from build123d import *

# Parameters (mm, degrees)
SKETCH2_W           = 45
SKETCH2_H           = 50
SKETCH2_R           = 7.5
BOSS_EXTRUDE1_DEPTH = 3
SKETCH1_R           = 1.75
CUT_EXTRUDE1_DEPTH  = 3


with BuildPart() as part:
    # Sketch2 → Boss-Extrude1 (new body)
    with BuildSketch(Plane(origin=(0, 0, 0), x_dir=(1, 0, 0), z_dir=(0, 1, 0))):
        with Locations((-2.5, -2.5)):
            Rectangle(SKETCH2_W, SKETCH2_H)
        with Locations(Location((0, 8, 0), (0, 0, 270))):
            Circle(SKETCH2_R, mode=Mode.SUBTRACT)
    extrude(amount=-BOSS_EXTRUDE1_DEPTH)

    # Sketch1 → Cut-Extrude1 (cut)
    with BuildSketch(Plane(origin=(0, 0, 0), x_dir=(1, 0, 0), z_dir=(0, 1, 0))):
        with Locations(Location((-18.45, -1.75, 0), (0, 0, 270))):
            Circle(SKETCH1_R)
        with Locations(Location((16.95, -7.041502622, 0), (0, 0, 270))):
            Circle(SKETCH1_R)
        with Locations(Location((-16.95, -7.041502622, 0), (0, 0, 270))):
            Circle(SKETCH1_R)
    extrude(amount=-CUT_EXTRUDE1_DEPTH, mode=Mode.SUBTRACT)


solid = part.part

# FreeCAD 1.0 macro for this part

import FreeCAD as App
import Part
import Sketcher
from FreeCAD import Vector
Q = App.Units.Quantity


def add_polygon(sketch, points):
    """Adds a closed chain of lines whose ends are joined by coincident constraints."""
    first, n = sketch.GeometryCount, len(points)
    for a, b in zip(points, points[1:] + points[:1]):
        sketch.addGeometry(Part.LineSegment(App.Vector(*a, 0), App.Vector(*b, 0)), False)
    for i in range(n):
        sketch.addConstraint(Sketcher.Constraint("Coincident", first + i, 2, first + (i + 1) % n, 1))

doc = App.newDocument("Part")
params = doc.addObject("Spreadsheet::Sheet", "Params")
for row, (alias, value) in enumerate([
    ("sketch1_diameter", "15 mm"),
    ("sketch1_width", "45 mm"),
    ("sketch1_height", "50 mm"),
    ("pad1_length", "3 mm"),
    ("sketch2_diameter", "3.5 mm"),
    ("pocket1_length", "3 mm"),
], start=1):
    params.set(f"A{row}", alias)
    params.set(f"B{row}", "=" + value)
    params.setAlias(f"B{row}", alias)

body = doc.addObject("PartDesign::Body", "Body")

# Sketch on XZ plane
sketch1 = body.newObject("Sketcher::SketchObject", "Sketch")
sketch1.AttachmentSupport = (doc.getObject("XZ_Plane"), [""])
sketch1.MapMode = "FlatFace"
add_polygon(sketch1, [(-25, -22), (-25, 28), (20, 28), (20, -22)])  # lines 0-3
sketch1.addGeometry(Part.Circle(Vector(0, -8, 0), Vector(0, 0, 1), 8), False)  # 4
sketch1.addConstraint(Sketcher.Constraint("Vertical", 0))
sketch1.addConstraint(Sketcher.Constraint("Horizontal", 1))
sketch1.addConstraint(Sketcher.Constraint("Vertical", 2))
sketch1.addConstraint(Sketcher.Constraint("Horizontal", 3))
sketch1.addConstraint(Sketcher.Constraint("PointOnObject", 4, 3, -2))
sketch1.addConstraint(Sketcher.Constraint("Diameter", 4, Q("15 mm")))
sketch1.addConstraint(Sketcher.Constraint("DistanceX", 1, 1, 1, 2, Q("45 mm")))
sketch1.addConstraint(Sketcher.Constraint("DistanceY", 0, 1, 0, 2, Q("50 mm")))
sketch1.addConstraint(Sketcher.Constraint("DistanceY", 4, 3, -1, 1, Q("8 mm")))
sketch1.addConstraint(Sketcher.Constraint("DistanceX", 0, 2, -1, 1, Q("25 mm")))
sketch1.addConstraint(Sketcher.Constraint("DistanceY", -1, 1, 0, 2, Q("27.5 mm")))
sketch1.setExpression("Constraints[9]", "Params.sketch1_diameter")
sketch1.setExpression("Constraints[10]", "Params.sketch1_width")
sketch1.setExpression("Constraints[11]", "Params.sketch1_height")
pad1 = body.newObject("PartDesign::Pad", "Pad")
pad1.Profile = sketch1
pad1.setExpression("Length", "Params.pad1_length")

# Sketch on XZ plane
sketch2 = body.newObject("Sketcher::SketchObject", "Sketch001")
sketch2.AttachmentSupport = (doc.getObject("XZ_Plane"), [""])
sketch2.MapMode = "FlatFace"
sketch2.addGeometry(Part.Circle(Vector(-18.4, 1.8, 0), Vector(0, 0, 1), 1.8), False)
sketch2.addGeometry(Part.Circle(Vector(16.9, 7, 0), Vector(0, 0, 1), 1.8), False)
sketch2.addGeometry(Part.Circle(Vector(-16.9, 7, 0), Vector(0, 0, 1), 1.8), False)
sketch2.addConstraint(Sketcher.Constraint("Equal", 0, 1))
sketch2.addConstraint(Sketcher.Constraint("Equal", 1, 2))
sketch2.addConstraint(Sketcher.Constraint("Symmetric", 1, 3, 2, 3, -2))
sketch2.addConstraint(Sketcher.Constraint("Diameter", 0, Q("3.5 mm")))
sketch2.addConstraint(Sketcher.Constraint("DistanceX", 0, 3, 1, 3, Q("35.4 mm")))
sketch2.addConstraint(Sketcher.Constraint("DistanceX", 0, 3, 2, 3, Q("1.5 mm")))
sketch2.addConstraint(Sketcher.Constraint("DistanceY", -1, 1, 0, 3, Q("1.75 mm")))
sketch2.addConstraint(Sketcher.Constraint("DistanceY", -1, 1, 1, 3, Q("7.041503 mm")))
sketch2.setExpression("Constraints[3]", "Params.sketch2_diameter")
pocket1 = body.newObject("PartDesign::Pocket", "Pocket")
pocket1.Profile = sketch2
pocket1.setExpression("Length", "Params.pocket1_length")
pocket1.Reversed = True

doc.recompute()
